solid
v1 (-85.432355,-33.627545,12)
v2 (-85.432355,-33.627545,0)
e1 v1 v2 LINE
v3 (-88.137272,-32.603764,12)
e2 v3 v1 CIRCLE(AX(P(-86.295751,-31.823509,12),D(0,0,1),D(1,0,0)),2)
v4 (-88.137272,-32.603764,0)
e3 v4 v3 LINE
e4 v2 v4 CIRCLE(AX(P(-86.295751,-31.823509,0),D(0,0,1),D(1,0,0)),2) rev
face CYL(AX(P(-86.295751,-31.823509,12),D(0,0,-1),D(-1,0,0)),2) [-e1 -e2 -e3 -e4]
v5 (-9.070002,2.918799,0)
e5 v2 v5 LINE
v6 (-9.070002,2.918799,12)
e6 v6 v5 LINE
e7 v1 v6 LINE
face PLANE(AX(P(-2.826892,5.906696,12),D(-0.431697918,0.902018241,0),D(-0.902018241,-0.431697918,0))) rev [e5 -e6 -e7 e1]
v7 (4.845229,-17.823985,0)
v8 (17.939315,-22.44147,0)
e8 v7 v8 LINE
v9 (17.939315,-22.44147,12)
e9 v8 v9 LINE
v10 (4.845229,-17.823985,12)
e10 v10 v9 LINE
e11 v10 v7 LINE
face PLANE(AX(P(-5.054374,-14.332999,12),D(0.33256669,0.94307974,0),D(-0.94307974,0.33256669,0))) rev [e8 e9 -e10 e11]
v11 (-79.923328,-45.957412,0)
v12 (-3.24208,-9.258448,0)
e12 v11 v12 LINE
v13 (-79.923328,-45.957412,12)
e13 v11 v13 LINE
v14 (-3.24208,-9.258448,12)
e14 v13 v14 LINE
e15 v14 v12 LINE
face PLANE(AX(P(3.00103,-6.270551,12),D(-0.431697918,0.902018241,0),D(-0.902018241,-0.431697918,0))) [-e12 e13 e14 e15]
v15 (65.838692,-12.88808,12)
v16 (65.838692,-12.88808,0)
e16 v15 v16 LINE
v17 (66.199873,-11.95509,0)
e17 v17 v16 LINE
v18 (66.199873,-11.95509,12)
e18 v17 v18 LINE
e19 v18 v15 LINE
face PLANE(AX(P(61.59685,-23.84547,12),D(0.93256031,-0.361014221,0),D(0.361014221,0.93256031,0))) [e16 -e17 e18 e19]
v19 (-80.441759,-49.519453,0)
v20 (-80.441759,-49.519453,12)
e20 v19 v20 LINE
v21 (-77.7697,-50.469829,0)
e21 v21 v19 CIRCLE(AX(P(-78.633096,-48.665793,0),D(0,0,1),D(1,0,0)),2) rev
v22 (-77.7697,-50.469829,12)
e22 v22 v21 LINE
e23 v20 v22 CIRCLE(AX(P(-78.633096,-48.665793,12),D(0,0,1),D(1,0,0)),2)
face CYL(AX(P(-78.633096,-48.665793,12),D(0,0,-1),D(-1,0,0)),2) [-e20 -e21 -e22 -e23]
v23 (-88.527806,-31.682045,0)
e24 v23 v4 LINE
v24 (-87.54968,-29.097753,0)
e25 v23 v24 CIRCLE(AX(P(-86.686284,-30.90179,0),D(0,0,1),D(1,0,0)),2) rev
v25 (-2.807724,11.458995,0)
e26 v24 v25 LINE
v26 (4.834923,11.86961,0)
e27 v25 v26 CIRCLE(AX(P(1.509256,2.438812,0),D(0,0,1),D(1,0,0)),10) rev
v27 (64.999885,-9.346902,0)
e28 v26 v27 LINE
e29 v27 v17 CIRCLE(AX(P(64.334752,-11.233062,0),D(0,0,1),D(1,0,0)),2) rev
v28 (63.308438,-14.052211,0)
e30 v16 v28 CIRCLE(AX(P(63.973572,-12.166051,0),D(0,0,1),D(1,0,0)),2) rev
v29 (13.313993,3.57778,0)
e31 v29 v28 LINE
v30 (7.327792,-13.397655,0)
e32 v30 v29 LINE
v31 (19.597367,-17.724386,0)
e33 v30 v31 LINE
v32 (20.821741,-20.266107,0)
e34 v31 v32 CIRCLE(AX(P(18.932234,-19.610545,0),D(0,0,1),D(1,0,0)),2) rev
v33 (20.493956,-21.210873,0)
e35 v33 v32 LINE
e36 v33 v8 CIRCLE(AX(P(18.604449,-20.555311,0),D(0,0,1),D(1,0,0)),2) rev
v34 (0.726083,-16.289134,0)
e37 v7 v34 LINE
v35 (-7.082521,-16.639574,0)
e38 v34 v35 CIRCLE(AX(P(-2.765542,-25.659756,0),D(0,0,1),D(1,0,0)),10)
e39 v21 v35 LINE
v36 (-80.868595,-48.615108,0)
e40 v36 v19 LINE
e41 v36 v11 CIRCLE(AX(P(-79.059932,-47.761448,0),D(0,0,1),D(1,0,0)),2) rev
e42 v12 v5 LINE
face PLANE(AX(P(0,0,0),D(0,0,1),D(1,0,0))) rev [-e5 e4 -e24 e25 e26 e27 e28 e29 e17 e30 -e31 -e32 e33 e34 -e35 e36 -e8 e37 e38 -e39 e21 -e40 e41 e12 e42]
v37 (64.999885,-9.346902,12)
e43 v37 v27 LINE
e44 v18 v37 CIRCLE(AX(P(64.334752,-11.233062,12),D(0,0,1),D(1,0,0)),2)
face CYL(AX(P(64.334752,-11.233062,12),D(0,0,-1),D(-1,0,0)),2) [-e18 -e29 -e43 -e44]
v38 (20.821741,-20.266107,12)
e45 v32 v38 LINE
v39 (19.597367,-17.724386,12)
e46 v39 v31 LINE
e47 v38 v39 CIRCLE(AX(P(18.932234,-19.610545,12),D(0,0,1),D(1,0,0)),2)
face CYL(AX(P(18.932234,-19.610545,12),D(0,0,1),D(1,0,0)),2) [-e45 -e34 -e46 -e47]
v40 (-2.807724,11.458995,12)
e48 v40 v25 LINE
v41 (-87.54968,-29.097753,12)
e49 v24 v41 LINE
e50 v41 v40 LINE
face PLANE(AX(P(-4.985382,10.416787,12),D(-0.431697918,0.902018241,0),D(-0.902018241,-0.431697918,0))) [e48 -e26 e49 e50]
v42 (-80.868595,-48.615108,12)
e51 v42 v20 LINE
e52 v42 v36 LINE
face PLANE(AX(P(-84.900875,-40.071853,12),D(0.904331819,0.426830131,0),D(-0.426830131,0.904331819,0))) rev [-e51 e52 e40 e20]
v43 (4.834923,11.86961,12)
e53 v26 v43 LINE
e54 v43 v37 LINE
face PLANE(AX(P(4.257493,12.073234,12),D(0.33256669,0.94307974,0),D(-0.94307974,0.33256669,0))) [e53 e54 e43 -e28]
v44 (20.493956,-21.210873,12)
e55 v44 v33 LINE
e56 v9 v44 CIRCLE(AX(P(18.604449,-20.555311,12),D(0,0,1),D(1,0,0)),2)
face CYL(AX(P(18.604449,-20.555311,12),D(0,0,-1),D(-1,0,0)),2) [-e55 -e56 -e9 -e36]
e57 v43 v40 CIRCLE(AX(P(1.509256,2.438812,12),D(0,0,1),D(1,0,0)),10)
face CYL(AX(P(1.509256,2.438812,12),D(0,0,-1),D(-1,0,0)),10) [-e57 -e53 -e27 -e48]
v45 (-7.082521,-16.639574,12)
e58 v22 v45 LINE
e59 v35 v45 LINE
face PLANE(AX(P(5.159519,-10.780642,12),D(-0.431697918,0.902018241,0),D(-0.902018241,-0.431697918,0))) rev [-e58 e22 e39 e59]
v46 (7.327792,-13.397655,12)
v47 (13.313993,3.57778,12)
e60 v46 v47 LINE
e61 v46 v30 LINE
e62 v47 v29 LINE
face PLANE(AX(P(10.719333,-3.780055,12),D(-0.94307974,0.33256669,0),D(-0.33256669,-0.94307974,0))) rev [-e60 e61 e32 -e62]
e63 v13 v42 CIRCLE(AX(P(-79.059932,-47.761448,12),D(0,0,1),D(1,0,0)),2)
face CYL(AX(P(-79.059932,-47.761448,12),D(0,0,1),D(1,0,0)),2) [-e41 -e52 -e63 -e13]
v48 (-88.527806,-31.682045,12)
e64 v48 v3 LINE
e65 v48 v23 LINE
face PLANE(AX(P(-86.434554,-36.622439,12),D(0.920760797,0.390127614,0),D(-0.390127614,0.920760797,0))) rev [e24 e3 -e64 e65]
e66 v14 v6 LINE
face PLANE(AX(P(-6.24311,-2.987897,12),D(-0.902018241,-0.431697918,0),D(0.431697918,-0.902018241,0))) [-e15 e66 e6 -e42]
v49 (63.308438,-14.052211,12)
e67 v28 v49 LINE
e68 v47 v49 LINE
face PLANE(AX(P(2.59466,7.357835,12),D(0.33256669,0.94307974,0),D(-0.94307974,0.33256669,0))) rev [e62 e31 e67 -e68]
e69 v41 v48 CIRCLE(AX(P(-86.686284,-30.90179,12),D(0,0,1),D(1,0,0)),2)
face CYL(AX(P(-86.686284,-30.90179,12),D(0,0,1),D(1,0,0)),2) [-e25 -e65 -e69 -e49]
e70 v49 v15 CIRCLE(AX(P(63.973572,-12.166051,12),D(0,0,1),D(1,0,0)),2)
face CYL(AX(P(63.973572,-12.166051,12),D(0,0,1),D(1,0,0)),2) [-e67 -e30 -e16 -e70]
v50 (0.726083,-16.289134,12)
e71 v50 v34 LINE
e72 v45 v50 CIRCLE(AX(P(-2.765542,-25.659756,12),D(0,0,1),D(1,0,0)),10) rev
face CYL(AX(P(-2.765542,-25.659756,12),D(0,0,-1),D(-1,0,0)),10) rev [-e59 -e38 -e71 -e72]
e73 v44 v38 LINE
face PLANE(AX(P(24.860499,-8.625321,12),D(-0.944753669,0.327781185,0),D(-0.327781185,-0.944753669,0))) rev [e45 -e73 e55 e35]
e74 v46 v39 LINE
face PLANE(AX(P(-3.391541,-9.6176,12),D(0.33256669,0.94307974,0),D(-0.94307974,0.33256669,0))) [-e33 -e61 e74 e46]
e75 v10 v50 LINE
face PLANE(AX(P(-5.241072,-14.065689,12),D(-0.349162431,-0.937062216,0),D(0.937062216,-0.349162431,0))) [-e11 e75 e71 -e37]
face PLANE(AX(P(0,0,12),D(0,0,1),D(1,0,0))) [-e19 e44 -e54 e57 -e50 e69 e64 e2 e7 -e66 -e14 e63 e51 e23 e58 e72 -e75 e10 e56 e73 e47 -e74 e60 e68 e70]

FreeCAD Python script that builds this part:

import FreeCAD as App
import Part
import Sketcher

V = App.Vector


def edges_at(feature, points):
    """Names of the edges that pass closest to the given points."""
    edges = feature.Shape.Edges
    near = lambda p: min(range(len(edges)), key=lambda i: edges[i].distToShape(Part.Vertex(*p))[0])
    return sorted({f"Edge{near(p) + 1}" for p in points})


def add_polygon(sketch, points):
    """Adds a closed chain of lines whose ends are joined by coincident constraints."""
    first, n = sketch.GeometryCount, len(points)
    for a, b in zip(points, points[1:] + points[:1]):
        sketch.addGeometry(Part.LineSegment(App.Vector(*a, 0), App.Vector(*b, 0)), False)
    for i in range(n):
        sketch.addConstraint(Sketcher.Constraint("Coincident", first + i, 2, first + (i + 1) % n, 1))

doc = App.newDocument("Part")
body = doc.addObject("PartDesign::Body", "Body")

# Sketch on XY plane
sketch1 = body.newObject("Sketcher::SketchObject", "Sketch")
sketch1.AttachmentSupport = (doc.getObject("XY_Plane"), [""])
sketch1.MapMode = "FlatFace"
add_polygon(sketch1, [(1, 13), (-89, -30), (-87, -35), (-9, 3), (-3, -9), (-82, -47), (-80, -51), (-3, -15), (5, -18), (20, -23), (21, -18), (7, -13), (13, 4), (65, -15), (67, -10)])  # lines 0-14
sketch1.addConstraint([
    Sketcher.Constraint("Parallel", 0, 2),
    Sketcher.Constraint("Perpendicular", 2, 3),
    Sketcher.Constraint("Perpendicular", 3, 4),
    Sketcher.Constraint("Parallel", 4, 6),
    Sketcher.Constraint("Parallel", 8, 10),
    Sketcher.Constraint("Perpendicular", 10, 11),
    Sketcher.Constraint("Perpendicular", 11, 12),
    Sketcher.Constraint("Parallel", 12, 14),
    Sketcher.Constraint("Distance", 0, 100.0),
    Sketcher.Constraint("Distance", 4, 87.0),
    Sketcher.Constraint("Distance", 10, 15.0),
    Sketcher.Constraint("Distance", 11, 18.0),
    Sketcher.Constraint("Distance", 14, 70.0),
    Sketcher.Constraint("Distance", 3, 13.5),
    Sketcher.Constraint("DistanceY", 8, 2, 7, 2, 5.285999),
    Sketcher.Constraint("Distance", 13, 5.002301),
    Sketcher.Constraint("DistanceY", -1, 1, 2, 2, 2.918799),
    Sketcher.Constraint("DistanceY", 0, 2, 3, 2, 20.664198),
    Sketcher.Constraint("DistanceX", 0, 2, 4, 2, 7.555599),
    Sketcher.Constraint("DistanceY", 9, 2, 10, 2, 4.9885),
    Sketcher.Constraint("DistanceX", 12, 2, 13, 2, 1.805902),
    Sketcher.Constraint("DistanceY", 10, 2, 14, 2, 26.644801),
    Sketcher.Constraint("Distance", 2, 86.750569),
    Sketcher.Constraint("DistanceY", 1, 2, -1, 1, 34.531241),
    Sketcher.Constraint("DistanceX", 3, 2, -1, 1, 3.24208),
    Sketcher.Constraint("DistanceY", 5, 2, -1, 1, 51.337891),
    Sketcher.Constraint("DistanceX", -1, 1, 7, 2, 4.845229),
    Sketcher.Constraint("DistanceX", 4, 2, 5, 2, 2.134182),
    Sketcher.Constraint("DistanceX", 5, 2, 6, 2, 76.330869),
    Sketcher.Constraint("DistanceY", 7, 2, 6, 2, 3.01737),
])
pad1 = body.newObject("PartDesign::Pad", "Pad")
pad1.Profile = sketch1
pad1.Length = 12
doc.recompute()

fillet = body.newObject("PartDesign::Fillet", "Fillet")
fillet.Base = (pad1, edges_at(pad1, [(0.929, 13.247, 6)]))
fillet.Radius = 10
doc.recompute()

fillet2 = body.newObject("PartDesign::Fillet", "Fillet001")
fillet2.Base = (fillet, edges_at(fillet, [(-3.253, -14.807, 6)]))
fillet2.Radius = 10
doc.recompute()

fillet3 = body.newObject("PartDesign::Fillet", "Fillet002")
fillet3.Base = (fillet2, edges_at(fillet2, [
    (65.138, -14.697, 6),
    (21.474, -18.386, 6),
    (19.835, -23.11, 6),
    (66.944, -10.033, 6),
]))
fillet3.Radius = 2
doc.recompute()

fillet4 = body.newObject("PartDesign::Fillet", "Fillet003")
fillet4.Base = (fillet3, edges_at(fillet3, [
    (-79.583, -51.338, 6),
    (-81.718, -46.816, 6),
    (-87.321, -34.531, 6),
    (-89.273, -29.923, 6),
]))
fillet4.Radius = 2

doc.recompute()
